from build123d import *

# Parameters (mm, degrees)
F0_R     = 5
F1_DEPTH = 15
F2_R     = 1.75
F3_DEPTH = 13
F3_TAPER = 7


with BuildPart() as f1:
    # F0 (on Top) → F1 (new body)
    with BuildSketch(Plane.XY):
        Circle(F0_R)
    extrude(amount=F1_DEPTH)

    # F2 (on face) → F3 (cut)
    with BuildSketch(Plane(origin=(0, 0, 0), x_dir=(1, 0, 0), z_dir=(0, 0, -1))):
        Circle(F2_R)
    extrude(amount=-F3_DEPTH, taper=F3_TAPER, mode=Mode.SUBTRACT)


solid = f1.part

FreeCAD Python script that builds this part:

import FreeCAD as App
import Part
import Sketcher
Q = App.Units.Quantity

doc = App.newDocument("Part")
body = doc.addObject("PartDesign::Body", "Body")

# Sketch on XY plane
sketch1 = doc.addObject("Sketcher::SketchObject", "Sketch")
body.addObject(sketch1)
sketch1.AttachmentSupport = (doc.XY_Plane, [""])
sketch1.MapMode = "FlatFace"
sketch1.addGeometry(Part.Circle(App.Vector(0, 0, 0), App.Vector(0, 0, 1), 5), False)
sketch1.addConstraint(Sketcher.Constraint("Coincident", 0, 3, -1, 1))
sketch1.addConstraint(Sketcher.Constraint("Diameter", 0, Q("10 mm")))
pad1 = doc.addObject("PartDesign::Pad", "Pad")
body.addObject(pad1)
pad1.Profile = sketch1
pad1.Length = 15

# Sketch on XY plane
sketch2 = doc.addObject("Sketcher::SketchObject", "Sketch001")
body.addObject(sketch2)
sketch2.AttachmentSupport = (doc.XY_Plane, [""])
sketch2.MapMode = "FlatFace"
sketch2.addGeometry(Part.Circle(App.Vector(0, 0, 0), App.Vector(0, 0, 1), 1.8), False)
sketch2.addConstraint(Sketcher.Constraint("Coincident", 0, 3, -1, 1))
sketch2.addConstraint(Sketcher.Constraint("Diameter", 0, Q("3.5 mm")))
pocket1 = doc.addObject("PartDesign::Pocket", "Pocket")
body.addObject(pocket1)
pocket1.Profile = sketch2
pocket1.Length = 13
pocket1.Reversed = True
pocket1.TaperAngle = -7

doc.recompute()
